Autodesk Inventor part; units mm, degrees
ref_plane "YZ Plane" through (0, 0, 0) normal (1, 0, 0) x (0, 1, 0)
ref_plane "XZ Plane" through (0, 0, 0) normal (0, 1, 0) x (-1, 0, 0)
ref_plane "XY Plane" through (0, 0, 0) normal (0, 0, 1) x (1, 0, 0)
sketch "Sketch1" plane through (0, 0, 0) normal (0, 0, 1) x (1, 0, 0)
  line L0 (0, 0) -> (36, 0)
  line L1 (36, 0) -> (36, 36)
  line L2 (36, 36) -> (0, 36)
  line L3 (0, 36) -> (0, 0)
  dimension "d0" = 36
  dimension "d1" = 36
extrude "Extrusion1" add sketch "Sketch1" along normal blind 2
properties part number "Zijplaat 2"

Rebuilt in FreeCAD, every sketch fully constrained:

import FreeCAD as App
import Part
import Sketcher

V = App.Vector


def add_polygon(sketch, points):
    """Adds a closed chain of lines whose ends are joined by coincident constraints."""
    first, n = sketch.GeometryCount, len(points)
    for a, b in zip(points, points[1:] + points[:1]):
        sketch.addGeometry(Part.LineSegment(App.Vector(*a, 0), App.Vector(*b, 0)), False)
    for i in range(n):
        sketch.addConstraint(Sketcher.Constraint("Coincident", first + i, 2, first + (i + 1) % n, 1))

doc = App.newDocument("Part")
body = doc.addObject("PartDesign::Body", "Body")

# Sketch on XY plane
sketch1 = body.newObject("Sketcher::SketchObject", "Sketch")
sketch1.AttachmentSupport = (doc.getObject("XY_Plane"), [""])
sketch1.MapMode = "FlatFace"
add_polygon(sketch1, [(0, 36), (0, 0), (36, 0), (36, 36)])  # lines 0-3
sketch1.addConstraint(Sketcher.Constraint("Vertical", 0))
sketch1.addConstraint(Sketcher.Constraint("Horizontal", 1))
sketch1.addConstraint(Sketcher.Constraint("Vertical", 2))
sketch1.addConstraint(Sketcher.Constraint("Horizontal", 3))
sketch1.addConstraint(Sketcher.Constraint("Coincident", 0, 2, -1, 1))
sketch1.addConstraint(Sketcher.Constraint("Equal", 3, 0))
sketch1.addConstraint(Sketcher.Constraint("DistanceX", 1, 1, 1, 2, 36.0))
pad1 = body.newObject("PartDesign::Pad", "Pad")
pad1.Profile = sketch1
pad1.Length = 2

doc.recompute()
